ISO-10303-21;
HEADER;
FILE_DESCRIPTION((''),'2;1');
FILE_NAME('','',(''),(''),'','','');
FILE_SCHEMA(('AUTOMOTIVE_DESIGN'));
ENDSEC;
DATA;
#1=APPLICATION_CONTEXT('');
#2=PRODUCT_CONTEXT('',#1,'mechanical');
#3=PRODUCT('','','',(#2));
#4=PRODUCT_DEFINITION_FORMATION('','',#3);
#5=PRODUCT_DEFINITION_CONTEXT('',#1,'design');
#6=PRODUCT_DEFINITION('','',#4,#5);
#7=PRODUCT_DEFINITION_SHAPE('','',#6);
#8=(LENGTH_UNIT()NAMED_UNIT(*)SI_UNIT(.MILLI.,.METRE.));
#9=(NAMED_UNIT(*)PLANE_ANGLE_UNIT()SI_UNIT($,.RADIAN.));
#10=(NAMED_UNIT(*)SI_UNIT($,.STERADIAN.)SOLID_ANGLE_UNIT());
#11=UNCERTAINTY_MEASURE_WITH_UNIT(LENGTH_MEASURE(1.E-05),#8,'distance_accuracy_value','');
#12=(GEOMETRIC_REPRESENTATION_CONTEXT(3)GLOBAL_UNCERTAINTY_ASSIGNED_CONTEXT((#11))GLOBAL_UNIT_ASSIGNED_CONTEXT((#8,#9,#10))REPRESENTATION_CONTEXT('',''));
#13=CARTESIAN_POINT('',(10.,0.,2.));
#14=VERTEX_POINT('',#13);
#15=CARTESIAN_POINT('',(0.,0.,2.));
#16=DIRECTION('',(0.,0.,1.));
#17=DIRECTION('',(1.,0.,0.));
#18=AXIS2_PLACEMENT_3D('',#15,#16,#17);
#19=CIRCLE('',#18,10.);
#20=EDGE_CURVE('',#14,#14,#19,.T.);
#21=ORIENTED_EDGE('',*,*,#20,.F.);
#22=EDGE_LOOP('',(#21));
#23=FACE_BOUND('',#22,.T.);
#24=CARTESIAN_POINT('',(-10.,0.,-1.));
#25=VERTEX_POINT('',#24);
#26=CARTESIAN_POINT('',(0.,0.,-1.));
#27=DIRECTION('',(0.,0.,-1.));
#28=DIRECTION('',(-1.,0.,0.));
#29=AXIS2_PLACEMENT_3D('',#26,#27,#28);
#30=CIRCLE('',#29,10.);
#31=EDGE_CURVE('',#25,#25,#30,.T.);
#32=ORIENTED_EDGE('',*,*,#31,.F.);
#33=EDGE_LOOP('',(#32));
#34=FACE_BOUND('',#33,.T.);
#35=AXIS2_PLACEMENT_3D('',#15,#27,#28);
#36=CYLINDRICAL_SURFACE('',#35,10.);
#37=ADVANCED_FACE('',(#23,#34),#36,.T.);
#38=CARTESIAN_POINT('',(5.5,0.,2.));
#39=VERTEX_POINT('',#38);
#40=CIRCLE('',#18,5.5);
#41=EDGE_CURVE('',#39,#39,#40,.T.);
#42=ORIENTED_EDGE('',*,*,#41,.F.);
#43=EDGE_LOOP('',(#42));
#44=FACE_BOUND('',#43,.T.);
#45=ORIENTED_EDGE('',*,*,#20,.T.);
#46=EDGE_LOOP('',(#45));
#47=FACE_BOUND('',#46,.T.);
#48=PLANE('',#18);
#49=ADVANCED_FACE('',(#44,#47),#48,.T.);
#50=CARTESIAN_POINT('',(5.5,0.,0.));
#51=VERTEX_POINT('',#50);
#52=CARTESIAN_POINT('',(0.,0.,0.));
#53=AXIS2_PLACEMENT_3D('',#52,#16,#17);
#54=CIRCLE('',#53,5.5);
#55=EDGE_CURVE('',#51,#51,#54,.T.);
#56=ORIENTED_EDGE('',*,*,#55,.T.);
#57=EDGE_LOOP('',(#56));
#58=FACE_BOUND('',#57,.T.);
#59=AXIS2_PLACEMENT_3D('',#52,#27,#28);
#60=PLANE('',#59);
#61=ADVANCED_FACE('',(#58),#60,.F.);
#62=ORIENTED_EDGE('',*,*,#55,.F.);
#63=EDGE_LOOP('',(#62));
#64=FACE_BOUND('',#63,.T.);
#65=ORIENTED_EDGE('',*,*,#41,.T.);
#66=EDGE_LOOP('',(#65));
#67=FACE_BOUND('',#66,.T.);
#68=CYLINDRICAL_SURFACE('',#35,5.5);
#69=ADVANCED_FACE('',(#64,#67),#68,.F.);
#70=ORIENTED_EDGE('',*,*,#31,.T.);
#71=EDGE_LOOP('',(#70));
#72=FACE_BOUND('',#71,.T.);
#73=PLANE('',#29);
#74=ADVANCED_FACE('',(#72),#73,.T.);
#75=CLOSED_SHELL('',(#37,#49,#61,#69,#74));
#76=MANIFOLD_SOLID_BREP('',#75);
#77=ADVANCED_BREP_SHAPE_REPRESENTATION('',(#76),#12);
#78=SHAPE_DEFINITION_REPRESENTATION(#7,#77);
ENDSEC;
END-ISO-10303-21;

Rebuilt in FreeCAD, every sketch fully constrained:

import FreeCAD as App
import Part
import Sketcher

V = App.Vector

doc = App.newDocument("Part")
body = doc.addObject("PartDesign::Body", "Body")

sketch1 = body.newObject("Sketcher::SketchObject", "Sketch")
sketch1.AttachmentSupport = (doc.getObject("XY_Plane"), [""])
sketch1.MapMode = "FlatFace"
sketch1.addGeometry([
    Part.Circle(V(0, 0, 0), V(0, 0, 1), 10),
    Part.Circle(V(0, 0, 0), V(0, 0, 1), 5.5),
], False)
sketch1.addConstraint([
    Sketcher.Constraint("Coincident", 0, 3, -1, 1),
    Sketcher.Constraint("Coincident", 1, 3, -1, 1),
    Sketcher.Constraint("Diameter", 0, 20.0),
    Sketcher.Constraint("Diameter", 1, 11.0),
])
pad1 = body.newObject("PartDesign::Pad", "Pad")
pad1.Profile = sketch1
pad1.Length = 2

sketch2 = body.newObject("Sketcher::SketchObject", "Sketch001")
sketch2.AttachmentSupport = (doc.getObject("XY_Plane"), [""])
sketch2.MapMode = "FlatFace"
sketch2.addGeometry(Part.Circle(V(0, 0, 0), V(0, 0, 1), 10), False)
sketch2.addConstraint([
    Sketcher.Constraint("Coincident", 0, 3, -1, 1),
    Sketcher.Constraint("Diameter", 0, 20.0),
])
pad2 = body.newObject("PartDesign::Pad", "Pad001")
pad2.Profile = sketch2
pad2.Length = 1
pad2.Reversed = True

doc.recompute()
